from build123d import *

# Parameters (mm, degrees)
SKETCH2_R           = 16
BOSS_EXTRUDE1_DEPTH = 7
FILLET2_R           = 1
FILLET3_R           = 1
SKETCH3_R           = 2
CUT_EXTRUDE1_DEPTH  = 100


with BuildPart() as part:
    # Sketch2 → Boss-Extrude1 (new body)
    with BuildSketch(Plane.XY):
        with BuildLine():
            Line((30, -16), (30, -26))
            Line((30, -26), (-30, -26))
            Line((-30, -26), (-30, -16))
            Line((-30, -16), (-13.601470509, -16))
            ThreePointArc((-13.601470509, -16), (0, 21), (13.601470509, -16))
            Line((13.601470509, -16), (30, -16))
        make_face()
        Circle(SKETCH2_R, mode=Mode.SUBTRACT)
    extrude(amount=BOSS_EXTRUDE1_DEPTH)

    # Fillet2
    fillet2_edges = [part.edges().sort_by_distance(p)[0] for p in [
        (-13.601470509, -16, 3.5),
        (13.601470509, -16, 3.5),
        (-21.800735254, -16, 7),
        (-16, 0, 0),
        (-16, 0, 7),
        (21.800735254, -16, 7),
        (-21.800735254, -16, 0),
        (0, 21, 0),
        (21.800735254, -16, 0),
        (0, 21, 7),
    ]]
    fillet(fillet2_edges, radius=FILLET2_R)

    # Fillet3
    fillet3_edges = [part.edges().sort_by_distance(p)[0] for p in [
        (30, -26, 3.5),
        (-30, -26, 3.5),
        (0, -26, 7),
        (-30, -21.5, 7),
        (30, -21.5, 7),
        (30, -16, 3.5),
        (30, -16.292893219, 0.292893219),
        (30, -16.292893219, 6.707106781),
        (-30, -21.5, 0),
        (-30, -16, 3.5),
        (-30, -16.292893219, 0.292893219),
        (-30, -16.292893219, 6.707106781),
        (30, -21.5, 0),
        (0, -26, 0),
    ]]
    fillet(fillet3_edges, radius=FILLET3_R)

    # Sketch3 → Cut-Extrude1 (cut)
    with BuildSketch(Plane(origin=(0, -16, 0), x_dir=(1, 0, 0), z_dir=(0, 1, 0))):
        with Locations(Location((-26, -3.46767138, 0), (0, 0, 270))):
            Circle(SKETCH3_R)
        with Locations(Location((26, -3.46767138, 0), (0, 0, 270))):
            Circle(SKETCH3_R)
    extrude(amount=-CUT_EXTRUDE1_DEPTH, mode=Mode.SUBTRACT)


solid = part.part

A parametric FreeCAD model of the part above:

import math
import FreeCAD as App
import Part
import Sketcher
from FreeCAD import Vector
Q = App.Units.Quantity


def edges_at(feature, points):
    """Names of the edges that pass closest to the given points."""
    edges = feature.Shape.Edges
    near = lambda p: min(range(len(edges)), key=lambda i: edges[i].distToShape(Part.Vertex(*p))[0])
    return sorted({f"Edge{near(p) + 1}" for p in points})

doc = App.newDocument("Part")
params = doc.addObject("Spreadsheet::Sheet", "Params")
for row, (alias, value) in enumerate([
    ("sketch1_diameter", "32 mm"),
    ("sketch1_radius", "21 mm"),
    ("sketch1_width", "60 mm"),
    ("sketch1_height", "10 mm"),
    ("pad1_length", "7 mm"),
    ("fillet_radius", "1 mm"),
    ("fillet2_radius", "1 mm"),
    ("sketch2_diameter", "4 mm"),
    ("pocket1_length", "100 mm"),
], start=1):
    params.set(f"A{row}", alias)
    params.set(f"B{row}", "=" + value)
    params.setAlias(f"B{row}", alias)

body = doc.addObject("PartDesign::Body", "Body")

sketch1 = body.newObject("Sketcher::SketchObject", "Sketch")
sketch1.AttachmentSupport = (doc.getObject("XY_Plane"), [""])
sketch1.MapMode = "FlatFace"
sketch1.addGeometry([
    Part.LineSegment(Vector(30, -26, 0), Vector(30, -16, 0)),
    Part.LineSegment(Vector(30, -16, 0), Vector(14, -16, 0)),
    Part.ArcOfCircle(Part.Circle(Vector(0, 0, 0), Vector(0, 0, 1), 21), math.radians(-50), math.radians(230)),
    Part.LineSegment(Vector(-14, -16, 0), Vector(-30, -16, 0)),
    Part.LineSegment(Vector(-30, -16, 0), Vector(-30, -26, 0)),
    Part.LineSegment(Vector(-30, -26, 0), Vector(30, -26, 0)),
    Part.Circle(Vector(0, 0, 0), Vector(0, 0, 1), 16),
], False)
sketch1.addConstraint([
    Sketcher.Constraint("Coincident", 0, 2, 1, 1),
    Sketcher.Constraint("Coincident", 1, 2, 2, 1),
    Sketcher.Constraint("Coincident", 2, 2, 3, 1),
    Sketcher.Constraint("Coincident", 3, 2, 4, 1),
    Sketcher.Constraint("Coincident", 4, 2, 5, 1),
    Sketcher.Constraint("Coincident", 5, 2, 0, 1),
    Sketcher.Constraint("Vertical", 0),
    Sketcher.Constraint("Horizontal", 1),
    Sketcher.Constraint("Horizontal", 3),
    Sketcher.Constraint("Vertical", 4),
    Sketcher.Constraint("Horizontal", 5),
    Sketcher.Constraint("Coincident", 2, 3, -1, 1),
    Sketcher.Constraint("Coincident", 6, 3, -1, 1),
    Sketcher.Constraint("Symmetric", 0, 2, 3, 2, -2),
    Sketcher.Constraint("Diameter", 6, Q("32 mm")),
    Sketcher.Constraint("Radius", 2, Q("21 mm")),
    Sketcher.Constraint("DistanceX", 5, 1, 5, 2, Q("60 mm")),
    Sketcher.Constraint("DistanceY", 0, 1, 0, 2, Q("10 mm")),
    Sketcher.Constraint("DistanceY", 0, 2, -1, 1, Q("16 mm")),
])
sketch1.setExpression("Constraints[14]", "Params.sketch1_diameter")
sketch1.setExpression("Constraints[15]", "Params.sketch1_radius")
sketch1.setExpression("Constraints[16]", "Params.sketch1_width")
sketch1.setExpression("Constraints[17]", "Params.sketch1_height")
pad1 = body.newObject("PartDesign::Pad", "Pad")
pad1.Profile = sketch1
pad1.setExpression("Length", "Params.pad1_length")
doc.recompute()

fillet = body.newObject("PartDesign::Fillet", "Fillet")
fillet.Base = (pad1, edges_at(pad1, [
    (-13.601, -16, 3.5),
    (13.601, -16, 3.5),
    (-21.801, -16, 7),
    (-16, 0, 0),
    (-16, 0, 7),
    (21.801, -16, 7),
    (-21.801, -16, 0),
    (0, 21, 0),
    (21.801, -16, 0),
    (0, 21, 7),
]))
fillet.setExpression("Radius", "Params.fillet_radius")
doc.recompute()

fillet2 = body.newObject("PartDesign::Fillet", "Fillet001")
fillet2.Base = (fillet, edges_at(fillet, [
    (30, -26, 3.5),
    (-30, -26, 3.5),
    (0, -26, 7),
    (-30, -21.5, 7),
    (30, -21.5, 7),
    (30, -16, 3.5),
    (30, -16.293, 0.293),
    (30, -16.293, 6.707),
    (-30, -21.5, 0),
    (-30, -16, 3.5),
    (-30, -16.293, 0.293),
    (-30, -16.293, 6.707),
    (30, -21.5, 0),
    (0, -26, 0),
]))
fillet2.setExpression("Radius", "Params.fillet2_radius")

sketch2 = body.newObject("Sketcher::SketchObject", "Sketch001")
sketch2.AttachmentSupport = (doc.getObject("XZ_Plane"), [""])
sketch2.MapMode = "FlatFace"
sketch2.AttachmentOffset = App.Placement(Vector(0, 0, 16), App.Rotation())
sketch2.addGeometry([
    Part.Circle(Vector(-26, 3.5, 0), Vector(0, 0, 1), 2),
    Part.Circle(Vector(26, 3.5, 0), Vector(0, 0, 1), 2),
], False)
sketch2.addConstraint([
    Sketcher.Constraint("Equal", 0, 1),
    Sketcher.Constraint("Symmetric", 0, 3, 1, 3, -2),
    Sketcher.Constraint("Diameter", 0, Q("4 mm")),
    Sketcher.Constraint("DistanceX", 0, 3, -1, 1, Q("26 mm")),
    Sketcher.Constraint("DistanceY", -1, 1, 0, 3, Q("3.467671 mm")),
])
sketch2.setExpression("Constraints[2]", "Params.sketch2_diameter")
pocket1 = body.newObject("PartDesign::Pocket", "Pocket")
pocket1.Profile = sketch2
pocket1.setExpression("Length", "Params.pocket1_length")
pocket1.Reversed = True

doc.recompute()
